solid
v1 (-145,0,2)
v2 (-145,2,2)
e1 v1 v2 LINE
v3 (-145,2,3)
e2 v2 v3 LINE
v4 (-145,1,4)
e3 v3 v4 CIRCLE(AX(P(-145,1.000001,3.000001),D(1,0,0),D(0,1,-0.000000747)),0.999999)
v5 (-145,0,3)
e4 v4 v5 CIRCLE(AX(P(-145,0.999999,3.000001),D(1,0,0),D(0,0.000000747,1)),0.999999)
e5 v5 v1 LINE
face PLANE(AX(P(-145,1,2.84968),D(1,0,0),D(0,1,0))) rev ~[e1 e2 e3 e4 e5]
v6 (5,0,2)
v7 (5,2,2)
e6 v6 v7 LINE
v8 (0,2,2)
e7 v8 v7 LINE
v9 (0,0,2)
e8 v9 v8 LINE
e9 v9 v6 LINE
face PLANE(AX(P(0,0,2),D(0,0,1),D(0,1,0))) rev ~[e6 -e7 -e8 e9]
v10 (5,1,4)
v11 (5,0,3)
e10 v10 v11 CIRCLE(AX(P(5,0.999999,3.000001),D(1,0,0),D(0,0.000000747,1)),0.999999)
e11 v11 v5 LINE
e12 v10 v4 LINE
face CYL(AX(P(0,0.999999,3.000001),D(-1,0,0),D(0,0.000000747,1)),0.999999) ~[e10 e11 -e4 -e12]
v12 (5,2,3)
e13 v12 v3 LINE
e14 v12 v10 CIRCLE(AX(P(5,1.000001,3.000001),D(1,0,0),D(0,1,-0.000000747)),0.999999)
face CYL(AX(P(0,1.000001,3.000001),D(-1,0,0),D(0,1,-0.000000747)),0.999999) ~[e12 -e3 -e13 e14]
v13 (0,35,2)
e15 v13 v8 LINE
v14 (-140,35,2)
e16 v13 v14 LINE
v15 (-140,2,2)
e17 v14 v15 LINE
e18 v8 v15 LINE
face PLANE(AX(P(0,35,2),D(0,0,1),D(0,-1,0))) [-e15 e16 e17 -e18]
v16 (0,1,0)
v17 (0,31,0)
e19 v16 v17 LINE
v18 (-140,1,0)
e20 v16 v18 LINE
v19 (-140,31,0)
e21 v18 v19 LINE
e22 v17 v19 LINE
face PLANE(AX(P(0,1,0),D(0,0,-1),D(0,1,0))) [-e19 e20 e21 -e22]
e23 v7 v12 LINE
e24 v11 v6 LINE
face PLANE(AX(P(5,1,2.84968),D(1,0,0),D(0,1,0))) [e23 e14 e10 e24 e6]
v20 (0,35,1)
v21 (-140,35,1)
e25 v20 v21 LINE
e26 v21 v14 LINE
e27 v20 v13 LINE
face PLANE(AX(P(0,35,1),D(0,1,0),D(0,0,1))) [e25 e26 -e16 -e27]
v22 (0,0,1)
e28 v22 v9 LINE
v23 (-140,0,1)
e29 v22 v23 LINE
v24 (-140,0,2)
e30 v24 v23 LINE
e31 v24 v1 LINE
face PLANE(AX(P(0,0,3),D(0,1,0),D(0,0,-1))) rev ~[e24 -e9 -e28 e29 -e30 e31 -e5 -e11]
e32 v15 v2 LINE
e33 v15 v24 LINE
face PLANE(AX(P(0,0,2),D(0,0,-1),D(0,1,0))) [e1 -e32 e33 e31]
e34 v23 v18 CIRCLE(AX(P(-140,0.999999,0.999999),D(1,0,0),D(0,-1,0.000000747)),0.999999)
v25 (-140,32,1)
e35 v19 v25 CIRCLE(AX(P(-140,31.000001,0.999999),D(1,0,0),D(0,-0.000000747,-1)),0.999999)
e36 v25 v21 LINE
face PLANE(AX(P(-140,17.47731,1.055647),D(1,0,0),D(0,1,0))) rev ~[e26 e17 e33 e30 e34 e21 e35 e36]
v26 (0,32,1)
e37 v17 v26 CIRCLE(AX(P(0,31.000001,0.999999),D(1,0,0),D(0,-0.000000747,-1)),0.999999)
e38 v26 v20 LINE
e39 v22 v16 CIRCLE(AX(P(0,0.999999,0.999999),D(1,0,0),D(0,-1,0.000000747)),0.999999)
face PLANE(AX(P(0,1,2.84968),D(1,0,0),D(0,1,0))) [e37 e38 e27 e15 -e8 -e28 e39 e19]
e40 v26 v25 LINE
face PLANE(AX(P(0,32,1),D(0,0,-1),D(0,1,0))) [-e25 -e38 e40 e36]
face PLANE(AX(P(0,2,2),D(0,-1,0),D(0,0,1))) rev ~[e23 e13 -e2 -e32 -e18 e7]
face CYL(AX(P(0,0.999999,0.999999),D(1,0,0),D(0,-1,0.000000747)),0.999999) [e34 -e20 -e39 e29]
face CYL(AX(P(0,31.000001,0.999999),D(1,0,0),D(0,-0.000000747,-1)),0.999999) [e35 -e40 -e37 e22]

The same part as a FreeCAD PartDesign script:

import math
import FreeCAD as App
import Part
import Sketcher
from FreeCAD import Vector

doc = App.newDocument("Part")
body = doc.addObject("PartDesign::Body", "Body")

# Sketch on YZ plane
sketch1 = body.newObject("Sketcher::SketchObject", "Sketch")
sketch1.AttachmentSupport = (doc.getObject("YZ_Plane"), [""])
sketch1.MapMode = "FlatFace"
sketch1.addGeometry([
    Part.ArcOfCircle(Part.Circle(Vector(1, 1, 0), Vector(0, 0, 1), 1), math.radians(180), math.radians(270)),  # 0
    Part.LineSegment(Vector(1, 0, 0), Vector(31, 0, 0)),  # 1
    Part.ArcOfCircle(Part.Circle(Vector(31, 1, 0), Vector(0, 0, 1), 1), math.radians(-90), math.radians(0)),  # 2
    Part.LineSegment(Vector(32, 1, 0), Vector(35, 1, 0)),  # 3
    Part.LineSegment(Vector(35, 1, 0), Vector(35, 2, 0)),  # 4
    Part.LineSegment(Vector(35, 2, 0), Vector(0, 2, 0)),  # 5
    Part.LineSegment(Vector(0, 2, 0), Vector(0, 1, 0)),  # 6
], False)
sketch1.addConstraint([
    Sketcher.Constraint("Tangent", 0, 2, 1, 1),
    Sketcher.Constraint("Tangent", 1, 2, 2, 1),
    Sketcher.Constraint("Coincident", 2, 2, 3, 1),
    Sketcher.Constraint("Coincident", 3, 2, 4, 1),
    Sketcher.Constraint("Coincident", 4, 2, 5, 1),
    Sketcher.Constraint("Coincident", 5, 2, 6, 1),
    Sketcher.Constraint("Tangent", 6, 2, 0, 1),
    Sketcher.Constraint("Horizontal", 1),
    Sketcher.Constraint("Horizontal", 3),
    Sketcher.Constraint("Vertical", 4),
    Sketcher.Constraint("Horizontal", 5),
    Sketcher.Constraint("Vertical", 6),
    Sketcher.Constraint("Equal", 0, 2),
    Sketcher.Constraint("PointOnObject", 0, 2, -1),
    Sketcher.Constraint("PointOnObject", 5, 2, -2),
    Sketcher.Constraint("Horizontal", 0, 3, 2, 2),
    Sketcher.Constraint("Radius", 0, 0.999999),
    Sketcher.Constraint("DistanceX", 1, 1, 1, 2, 30.0),
    Sketcher.Constraint("DistanceX", 3, 1, 3, 2, 3.0),
    Sketcher.Constraint("DistanceY", 4, 1, 4, 2, 1.0),
])
pad1 = body.newObject("PartDesign::Pad", "Pad")
pad1.Profile = sketch1
pad1.Length = 140
pad1.Reversed = True

# Sketch on YZ plane
sketch2 = body.newObject("Sketcher::SketchObject", "Sketch001")
sketch2.AttachmentSupport = (doc.getObject("YZ_Plane"), [""])
sketch2.MapMode = "FlatFace"
sketch2.addGeometry([
    Part.LineSegment(Vector(0, 3, 0), Vector(0, 2, 0)),  # 0
    Part.LineSegment(Vector(0, 2, 0), Vector(2, 2, 0)),  # 1
    Part.LineSegment(Vector(2, 2, 0), Vector(2, 3, 0)),  # 2
    Part.ArcOfCircle(Part.Circle(Vector(1, 3, 0), Vector(0, 0, 1), 1), math.radians(0), math.radians(90)),  # 3
    Part.ArcOfCircle(Part.Circle(Vector(1, 3, 0), Vector(0, 0, 1), 1), math.radians(90), math.radians(180)),  # 4
], False)
sketch2.addConstraint([
    Sketcher.Constraint("Coincident", 0, 2, 1, 1),
    Sketcher.Constraint("Coincident", 1, 2, 2, 1),
    Sketcher.Constraint("Tangent", 2, 2, 3, 1),
    Sketcher.Constraint("Tangent", 3, 2, 4, 1),
    Sketcher.Constraint("Tangent", 4, 2, 0, 1),
    Sketcher.Constraint("Vertical", 0),
    Sketcher.Constraint("Horizontal", 1),
    Sketcher.Constraint("Vertical", 2),
    Sketcher.Constraint("Equal", 3, 4),
    Sketcher.Constraint("PointOnObject", 0, 2, -2),
    Sketcher.Constraint("Vertical", 4, 3, 3, 2),
    Sketcher.Constraint("Radius", 3, 0.999999),
    Sketcher.Constraint("DistanceY", 0, 2, 0, 1, 1.0),
    Sketcher.Constraint("DistanceY", -1, 1, 3, 3, 3.000001),
])
pad2 = body.newObject("PartDesign::Pad", "Pad001")
pad2.Profile = sketch2
pad2.Length = 145
pad2.Reversed = True

# Sketch on YZ plane
sketch3 = body.newObject("Sketcher::SketchObject", "Sketch002")
sketch3.AttachmentSupport = (doc.getObject("YZ_Plane"), [""])
sketch3.MapMode = "FlatFace"
sketch3.addGeometry([
    Part.LineSegment(Vector(0, 3, 0), Vector(0, 2, 0)),  # 0
    Part.LineSegment(Vector(0, 2, 0), Vector(2, 2, 0)),  # 1
    Part.LineSegment(Vector(2, 2, 0), Vector(2, 3, 0)),  # 2
    Part.ArcOfCircle(Part.Circle(Vector(1, 3, 0), Vector(0, 0, 1), 1), math.radians(0), math.radians(90)),  # 3
    Part.ArcOfCircle(Part.Circle(Vector(1, 3, 0), Vector(0, 0, 1), 1), math.radians(90), math.radians(180)),  # 4
], False)
sketch3.addConstraint([
    Sketcher.Constraint("Coincident", 0, 2, 1, 1),
    Sketcher.Constraint("Coincident", 1, 2, 2, 1),
    Sketcher.Constraint("Tangent", 2, 2, 3, 1),
    Sketcher.Constraint("Tangent", 3, 2, 4, 1),
    Sketcher.Constraint("Tangent", 4, 2, 0, 1),
    Sketcher.Constraint("Vertical", 0),
    Sketcher.Constraint("Horizontal", 1),
    Sketcher.Constraint("Vertical", 2),
    Sketcher.Constraint("Equal", 3, 4),
    Sketcher.Constraint("PointOnObject", 0, 2, -2),
    Sketcher.Constraint("Vertical", 4, 3, 3, 2),
    Sketcher.Constraint("Radius", 3, 0.999999),
    Sketcher.Constraint("DistanceY", 0, 2, 0, 1, 1.0),
    Sketcher.Constraint("DistanceY", -1, 1, 3, 3, 3.000001),
])
pad3 = body.newObject("PartDesign::Pad", "Pad002")
pad3.Profile = sketch3
pad3.Length = 5

doc.recompute()
